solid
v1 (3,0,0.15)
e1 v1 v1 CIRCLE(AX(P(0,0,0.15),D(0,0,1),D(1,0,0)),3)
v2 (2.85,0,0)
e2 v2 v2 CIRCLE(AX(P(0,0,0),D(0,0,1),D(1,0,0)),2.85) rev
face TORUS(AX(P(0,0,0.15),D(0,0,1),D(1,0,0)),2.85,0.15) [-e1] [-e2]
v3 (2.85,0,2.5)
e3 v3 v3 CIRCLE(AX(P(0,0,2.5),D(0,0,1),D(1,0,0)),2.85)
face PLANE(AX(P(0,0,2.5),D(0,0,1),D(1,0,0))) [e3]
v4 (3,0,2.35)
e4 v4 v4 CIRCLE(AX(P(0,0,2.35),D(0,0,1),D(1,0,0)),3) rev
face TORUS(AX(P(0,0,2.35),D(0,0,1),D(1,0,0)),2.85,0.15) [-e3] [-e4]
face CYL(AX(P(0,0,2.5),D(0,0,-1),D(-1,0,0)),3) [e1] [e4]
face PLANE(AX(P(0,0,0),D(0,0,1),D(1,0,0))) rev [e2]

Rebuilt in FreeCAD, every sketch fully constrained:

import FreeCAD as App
import Part
import Sketcher
from FreeCAD import Vector
Q = App.Units.Quantity


def edges_at(feature, points):
    """Names of the edges that pass closest to the given points."""
    edges = feature.Shape.Edges
    near = lambda p: min(range(len(edges)), key=lambda i: edges[i].distToShape(Part.Vertex(*p))[0])
    return sorted({f"Edge{near(p) + 1}" for p in points})

doc = App.newDocument("Part")
body = doc.addObject("PartDesign::Body", "Body")

# Sketch on XY plane
sketch1 = body.newObject("Sketcher::SketchObject", "Sketch")
sketch1.AttachmentSupport = (doc.getObject("XY_Plane"), [""])
sketch1.MapMode = "FlatFace"
sketch1.addGeometry(Part.Circle(Vector(0, 0, 0), Vector(0, 0, 1), 3), False)
sketch1.addConstraint([
    Sketcher.Constraint("Coincident", 0, 3, -1, 1),
    Sketcher.Constraint("Diameter", 0, Q("6 mm")),
])
pad1 = body.newObject("PartDesign::Pad", "Pad")
pad1.Profile = sketch1
pad1.Length = 2.5
doc.recompute()

fillet = body.newObject("PartDesign::Fillet", "Fillet")
fillet.Base = (pad1, edges_at(pad1, [(-3, 0, 0), (-3, 0, 2.5)]))
fillet.Radius = 0.15

doc.recompute()
